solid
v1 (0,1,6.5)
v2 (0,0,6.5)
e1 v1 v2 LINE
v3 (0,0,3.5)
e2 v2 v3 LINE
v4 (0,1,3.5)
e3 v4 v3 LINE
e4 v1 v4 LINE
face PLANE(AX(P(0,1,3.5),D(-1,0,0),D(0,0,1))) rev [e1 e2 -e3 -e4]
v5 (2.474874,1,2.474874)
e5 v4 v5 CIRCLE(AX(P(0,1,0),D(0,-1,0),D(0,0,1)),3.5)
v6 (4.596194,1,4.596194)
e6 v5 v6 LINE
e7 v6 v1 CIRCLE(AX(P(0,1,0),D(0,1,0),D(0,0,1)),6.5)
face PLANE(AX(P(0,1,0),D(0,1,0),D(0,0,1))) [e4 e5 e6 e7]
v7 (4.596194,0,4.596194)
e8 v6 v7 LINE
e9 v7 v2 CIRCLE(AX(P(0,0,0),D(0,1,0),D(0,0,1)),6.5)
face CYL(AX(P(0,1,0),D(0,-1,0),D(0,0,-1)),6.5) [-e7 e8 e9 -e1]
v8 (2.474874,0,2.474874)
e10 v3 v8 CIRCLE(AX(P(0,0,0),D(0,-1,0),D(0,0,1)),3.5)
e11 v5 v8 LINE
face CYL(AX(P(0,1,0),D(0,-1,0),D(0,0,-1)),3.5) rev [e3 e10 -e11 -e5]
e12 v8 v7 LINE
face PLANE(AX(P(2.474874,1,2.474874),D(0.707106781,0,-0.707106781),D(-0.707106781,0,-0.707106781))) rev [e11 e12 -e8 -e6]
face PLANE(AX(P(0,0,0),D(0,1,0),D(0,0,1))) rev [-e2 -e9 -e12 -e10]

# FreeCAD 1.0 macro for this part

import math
import FreeCAD as App
import Part
import Sketcher

V = App.Vector
Q = App.Units.Quantity

doc = App.newDocument("Part")
body = doc.addObject("PartDesign::Body", "Body")

# Sketch on XZ plane
sketch1 = doc.addObject("Sketcher::SketchObject", "Sketch")
body.addObject(sketch1)
sketch1.AttachmentSupport = (doc.XZ_Plane, [""])
sketch1.MapMode = "FlatFace"
sketch1.addGeometry(Part.LineSegment(V(0, 6.5, 0), V(0, 3.5, 0)), False)
sketch1.addGeometry(Part.ArcOfCircle(Part.Circle(V(0, 0, 0), V(0, 0, 1), 3.5), math.radians(90), math.radians(405)), False)
sketch1.addGeometry(Part.LineSegment(V(2.5, 2.5, 0), V(4.6, 4.6, 0)), False)
sketch1.addGeometry(Part.ArcOfCircle(Part.Circle(V(0, 0, 0), V(0, 0, 1), 6.5), math.radians(90), math.radians(405)), False)
sketch1.addConstraint(Sketcher.Constraint("Coincident", 0, 2, 1, 1))
sketch1.addConstraint(Sketcher.Constraint("Coincident", 1, 2, 2, 1))
sketch1.addConstraint(Sketcher.Constraint("Coincident", 2, 2, 3, 2))
sketch1.addConstraint(Sketcher.Constraint("Coincident", 3, 1, 0, 1))
sketch1.addConstraint(Sketcher.Constraint("Vertical", 0))
sketch1.addConstraint(Sketcher.Constraint("Coincident", 1, 3, -1, 1))
sketch1.addConstraint(Sketcher.Constraint("Coincident", 3, 3, -1, 1))
sketch1.addConstraint(Sketcher.Constraint("PointOnObject", 0, 2, -2))
sketch1.addConstraint(Sketcher.Constraint("Radius", 1, 3.5))
sketch1.addConstraint(Sketcher.Constraint("Radius", 3, 6.5))
sketch1.addConstraint(Sketcher.Constraint("Angle", 2, Q("45 deg")))
sketch1.addConstraint(Sketcher.Constraint("DistanceX", -1, 1, 1, 2, 2.474874))
pad1 = doc.addObject("PartDesign::Pad", "Pad")
body.addObject(pad1)
pad1.Profile = sketch1
pad1.Length = 1
pad1.Reversed = True

doc.recompute()
